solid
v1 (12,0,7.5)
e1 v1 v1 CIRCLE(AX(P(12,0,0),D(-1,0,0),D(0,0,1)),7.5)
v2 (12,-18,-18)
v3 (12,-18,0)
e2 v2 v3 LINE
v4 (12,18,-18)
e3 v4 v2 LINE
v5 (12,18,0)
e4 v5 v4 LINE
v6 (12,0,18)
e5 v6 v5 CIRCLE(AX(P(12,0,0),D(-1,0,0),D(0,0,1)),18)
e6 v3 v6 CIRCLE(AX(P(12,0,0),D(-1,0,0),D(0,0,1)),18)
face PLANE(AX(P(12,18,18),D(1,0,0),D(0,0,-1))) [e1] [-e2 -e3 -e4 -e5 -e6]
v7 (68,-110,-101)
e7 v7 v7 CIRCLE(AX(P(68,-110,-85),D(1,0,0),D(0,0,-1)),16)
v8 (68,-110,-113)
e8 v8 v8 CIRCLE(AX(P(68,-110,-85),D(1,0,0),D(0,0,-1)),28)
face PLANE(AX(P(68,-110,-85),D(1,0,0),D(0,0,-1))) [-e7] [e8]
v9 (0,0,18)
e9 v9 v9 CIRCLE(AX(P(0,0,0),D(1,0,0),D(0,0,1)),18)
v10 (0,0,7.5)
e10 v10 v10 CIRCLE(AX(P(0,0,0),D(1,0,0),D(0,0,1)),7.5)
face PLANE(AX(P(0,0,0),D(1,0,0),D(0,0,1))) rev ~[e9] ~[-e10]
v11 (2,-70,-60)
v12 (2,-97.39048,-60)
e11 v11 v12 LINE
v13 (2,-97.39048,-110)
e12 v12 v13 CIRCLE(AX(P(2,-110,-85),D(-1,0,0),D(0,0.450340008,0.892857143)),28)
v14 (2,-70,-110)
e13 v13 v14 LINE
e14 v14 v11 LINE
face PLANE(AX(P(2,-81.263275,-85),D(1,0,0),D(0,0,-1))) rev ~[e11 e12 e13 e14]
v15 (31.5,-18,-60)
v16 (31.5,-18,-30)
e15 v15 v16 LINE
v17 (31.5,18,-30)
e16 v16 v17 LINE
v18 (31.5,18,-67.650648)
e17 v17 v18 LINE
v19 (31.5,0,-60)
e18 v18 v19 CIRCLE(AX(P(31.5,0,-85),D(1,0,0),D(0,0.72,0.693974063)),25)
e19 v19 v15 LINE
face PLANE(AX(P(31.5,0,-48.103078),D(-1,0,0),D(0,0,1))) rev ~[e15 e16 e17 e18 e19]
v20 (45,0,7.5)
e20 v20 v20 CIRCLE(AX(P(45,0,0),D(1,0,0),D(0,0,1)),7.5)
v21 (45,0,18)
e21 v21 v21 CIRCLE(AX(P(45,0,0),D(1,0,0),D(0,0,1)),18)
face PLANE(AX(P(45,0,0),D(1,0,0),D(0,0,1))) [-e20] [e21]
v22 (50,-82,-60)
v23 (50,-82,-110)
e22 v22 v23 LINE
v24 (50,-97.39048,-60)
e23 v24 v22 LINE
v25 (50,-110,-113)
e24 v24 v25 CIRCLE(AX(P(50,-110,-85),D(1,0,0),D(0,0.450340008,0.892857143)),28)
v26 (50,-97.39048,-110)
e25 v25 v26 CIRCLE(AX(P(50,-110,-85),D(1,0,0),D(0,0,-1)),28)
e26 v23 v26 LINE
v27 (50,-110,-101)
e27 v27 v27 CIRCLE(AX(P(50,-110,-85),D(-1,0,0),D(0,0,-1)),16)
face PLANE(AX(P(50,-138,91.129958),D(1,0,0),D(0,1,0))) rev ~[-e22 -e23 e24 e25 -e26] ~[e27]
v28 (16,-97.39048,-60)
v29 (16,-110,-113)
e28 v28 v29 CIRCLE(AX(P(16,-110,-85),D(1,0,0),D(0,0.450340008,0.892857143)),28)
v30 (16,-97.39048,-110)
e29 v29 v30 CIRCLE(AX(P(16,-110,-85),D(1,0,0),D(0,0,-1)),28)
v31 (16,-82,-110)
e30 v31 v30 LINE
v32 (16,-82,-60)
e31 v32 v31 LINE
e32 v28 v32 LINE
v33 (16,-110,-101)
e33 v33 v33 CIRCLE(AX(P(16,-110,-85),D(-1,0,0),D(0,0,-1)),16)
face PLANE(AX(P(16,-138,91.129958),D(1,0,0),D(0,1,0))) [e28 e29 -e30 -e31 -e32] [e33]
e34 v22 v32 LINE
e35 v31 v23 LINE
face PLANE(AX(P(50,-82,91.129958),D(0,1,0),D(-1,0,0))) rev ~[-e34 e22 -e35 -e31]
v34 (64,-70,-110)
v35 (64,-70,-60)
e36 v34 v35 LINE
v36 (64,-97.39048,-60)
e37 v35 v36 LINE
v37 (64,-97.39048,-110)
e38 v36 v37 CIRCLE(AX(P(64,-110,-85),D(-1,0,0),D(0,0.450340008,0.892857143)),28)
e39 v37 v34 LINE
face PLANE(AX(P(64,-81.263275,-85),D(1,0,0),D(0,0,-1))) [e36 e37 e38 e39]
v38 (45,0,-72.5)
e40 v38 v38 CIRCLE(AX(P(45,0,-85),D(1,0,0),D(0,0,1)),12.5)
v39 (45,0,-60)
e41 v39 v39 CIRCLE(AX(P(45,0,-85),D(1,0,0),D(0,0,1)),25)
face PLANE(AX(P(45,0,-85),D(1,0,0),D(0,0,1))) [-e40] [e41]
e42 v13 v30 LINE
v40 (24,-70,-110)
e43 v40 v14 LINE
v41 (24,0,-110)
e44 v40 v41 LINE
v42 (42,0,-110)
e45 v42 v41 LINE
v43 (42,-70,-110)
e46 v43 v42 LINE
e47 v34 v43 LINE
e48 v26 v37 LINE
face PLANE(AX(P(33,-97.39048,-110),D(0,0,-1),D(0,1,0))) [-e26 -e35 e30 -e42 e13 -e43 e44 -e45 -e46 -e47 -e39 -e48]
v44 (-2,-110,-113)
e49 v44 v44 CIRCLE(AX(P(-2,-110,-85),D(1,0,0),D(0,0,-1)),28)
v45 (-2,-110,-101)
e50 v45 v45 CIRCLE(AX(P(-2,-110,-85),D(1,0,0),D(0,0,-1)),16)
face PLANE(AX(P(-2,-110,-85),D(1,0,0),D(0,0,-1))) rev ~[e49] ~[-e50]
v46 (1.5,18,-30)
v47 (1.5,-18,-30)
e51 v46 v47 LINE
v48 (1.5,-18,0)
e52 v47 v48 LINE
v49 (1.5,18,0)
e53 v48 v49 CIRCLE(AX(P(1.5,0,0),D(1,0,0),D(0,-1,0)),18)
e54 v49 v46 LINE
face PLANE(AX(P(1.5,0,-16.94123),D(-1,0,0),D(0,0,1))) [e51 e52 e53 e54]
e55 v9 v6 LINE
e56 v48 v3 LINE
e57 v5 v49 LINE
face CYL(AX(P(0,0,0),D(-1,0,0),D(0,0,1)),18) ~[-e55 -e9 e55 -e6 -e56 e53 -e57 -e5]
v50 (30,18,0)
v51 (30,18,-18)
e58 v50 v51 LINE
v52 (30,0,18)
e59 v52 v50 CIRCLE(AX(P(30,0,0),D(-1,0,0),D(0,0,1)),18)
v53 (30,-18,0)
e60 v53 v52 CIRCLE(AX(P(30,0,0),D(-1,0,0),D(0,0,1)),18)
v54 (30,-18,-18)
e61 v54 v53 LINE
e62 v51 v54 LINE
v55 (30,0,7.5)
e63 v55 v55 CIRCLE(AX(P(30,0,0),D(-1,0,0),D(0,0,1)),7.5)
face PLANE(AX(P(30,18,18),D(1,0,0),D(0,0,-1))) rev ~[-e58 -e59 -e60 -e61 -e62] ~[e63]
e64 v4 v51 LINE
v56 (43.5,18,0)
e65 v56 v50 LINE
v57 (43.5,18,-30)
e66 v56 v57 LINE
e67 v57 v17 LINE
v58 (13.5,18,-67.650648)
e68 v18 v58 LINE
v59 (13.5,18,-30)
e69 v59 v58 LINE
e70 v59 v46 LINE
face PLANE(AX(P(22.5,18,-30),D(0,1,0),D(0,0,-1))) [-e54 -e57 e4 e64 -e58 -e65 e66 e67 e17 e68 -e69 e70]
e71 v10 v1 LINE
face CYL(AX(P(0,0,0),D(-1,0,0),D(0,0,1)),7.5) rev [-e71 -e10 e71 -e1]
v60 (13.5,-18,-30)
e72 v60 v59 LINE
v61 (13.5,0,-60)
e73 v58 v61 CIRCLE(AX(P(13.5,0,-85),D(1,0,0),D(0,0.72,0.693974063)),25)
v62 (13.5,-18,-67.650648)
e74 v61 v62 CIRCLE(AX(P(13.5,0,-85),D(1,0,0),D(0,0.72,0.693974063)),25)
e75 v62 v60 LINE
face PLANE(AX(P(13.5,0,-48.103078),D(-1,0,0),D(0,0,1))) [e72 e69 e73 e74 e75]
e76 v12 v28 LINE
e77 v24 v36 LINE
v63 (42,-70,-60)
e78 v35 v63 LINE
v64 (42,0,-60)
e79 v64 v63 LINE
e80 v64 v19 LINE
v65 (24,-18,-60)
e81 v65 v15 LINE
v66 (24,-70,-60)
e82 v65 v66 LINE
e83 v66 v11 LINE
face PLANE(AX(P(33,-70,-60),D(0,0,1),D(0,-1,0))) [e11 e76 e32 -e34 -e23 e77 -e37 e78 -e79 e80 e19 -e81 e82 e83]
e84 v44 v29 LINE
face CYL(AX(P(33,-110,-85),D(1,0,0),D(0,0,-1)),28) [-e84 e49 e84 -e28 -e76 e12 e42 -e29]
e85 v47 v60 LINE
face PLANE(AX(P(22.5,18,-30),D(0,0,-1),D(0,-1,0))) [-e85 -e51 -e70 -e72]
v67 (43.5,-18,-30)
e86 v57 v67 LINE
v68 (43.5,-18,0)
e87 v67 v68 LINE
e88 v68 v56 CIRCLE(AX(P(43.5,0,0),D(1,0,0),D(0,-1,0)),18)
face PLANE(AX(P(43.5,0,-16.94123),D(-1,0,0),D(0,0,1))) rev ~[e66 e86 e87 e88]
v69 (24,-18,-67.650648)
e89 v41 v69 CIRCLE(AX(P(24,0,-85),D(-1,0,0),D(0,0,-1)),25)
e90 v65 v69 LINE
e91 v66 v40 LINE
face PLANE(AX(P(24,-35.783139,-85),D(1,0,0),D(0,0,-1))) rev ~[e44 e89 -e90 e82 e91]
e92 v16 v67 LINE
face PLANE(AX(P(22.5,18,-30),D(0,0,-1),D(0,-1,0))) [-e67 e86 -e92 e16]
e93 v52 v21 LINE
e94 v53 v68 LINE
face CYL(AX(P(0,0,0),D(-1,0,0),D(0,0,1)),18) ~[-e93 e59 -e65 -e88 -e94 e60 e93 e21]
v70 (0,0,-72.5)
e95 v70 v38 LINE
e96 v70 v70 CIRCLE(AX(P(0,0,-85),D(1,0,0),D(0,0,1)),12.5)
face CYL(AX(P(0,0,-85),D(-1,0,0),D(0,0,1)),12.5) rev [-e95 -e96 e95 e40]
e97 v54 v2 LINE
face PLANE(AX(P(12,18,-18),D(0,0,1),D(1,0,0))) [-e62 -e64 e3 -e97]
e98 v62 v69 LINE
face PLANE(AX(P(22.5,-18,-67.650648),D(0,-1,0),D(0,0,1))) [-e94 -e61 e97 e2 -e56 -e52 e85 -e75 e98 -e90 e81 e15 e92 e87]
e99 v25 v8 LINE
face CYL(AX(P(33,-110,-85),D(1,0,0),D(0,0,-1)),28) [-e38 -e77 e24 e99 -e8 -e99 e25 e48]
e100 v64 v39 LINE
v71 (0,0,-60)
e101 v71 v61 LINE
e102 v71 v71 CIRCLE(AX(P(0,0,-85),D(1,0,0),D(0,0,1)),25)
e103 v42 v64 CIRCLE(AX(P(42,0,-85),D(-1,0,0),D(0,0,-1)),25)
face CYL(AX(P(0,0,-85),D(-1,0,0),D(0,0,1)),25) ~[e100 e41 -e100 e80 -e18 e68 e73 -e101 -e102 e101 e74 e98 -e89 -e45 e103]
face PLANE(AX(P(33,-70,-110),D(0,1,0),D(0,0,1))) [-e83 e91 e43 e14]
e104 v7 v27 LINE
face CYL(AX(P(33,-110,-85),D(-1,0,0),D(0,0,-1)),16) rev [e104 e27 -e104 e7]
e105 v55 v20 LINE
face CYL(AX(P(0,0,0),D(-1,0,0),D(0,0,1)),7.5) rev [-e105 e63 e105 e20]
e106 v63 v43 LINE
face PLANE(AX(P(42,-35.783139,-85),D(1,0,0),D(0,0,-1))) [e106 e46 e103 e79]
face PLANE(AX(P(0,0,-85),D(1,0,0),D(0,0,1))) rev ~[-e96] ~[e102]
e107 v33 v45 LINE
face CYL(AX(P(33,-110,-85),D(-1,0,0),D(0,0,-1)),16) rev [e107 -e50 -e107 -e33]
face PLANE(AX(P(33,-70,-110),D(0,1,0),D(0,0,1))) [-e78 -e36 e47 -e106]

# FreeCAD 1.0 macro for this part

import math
import FreeCAD as App
import Part
import Sketcher

doc = App.newDocument("Part")
body = doc.addObject("PartDesign::Body", "Body")

# Sketch on YZ plane
sketch1 = body.newObject("Sketcher::SketchObject", "Sketch")
sketch1.AttachmentSupport = (doc.getObject("YZ_Plane"), [""])
sketch1.MapMode = "FlatFace"
sketch1.addGeometry([
    Part.Circle(App.Vector(0, 0, 0), App.Vector(0, 0, 1), 18),
    Part.Circle(App.Vector(0, 0, 0), App.Vector(0, 0, 1), 7.5),
], False)
sketch1.addConstraint([
    Sketcher.Constraint("Coincident", 0, 3, -1, 1),
    Sketcher.Constraint("Coincident", 1, 3, -1, 1),
    Sketcher.Constraint("Diameter", 0, 36.0),
    Sketcher.Constraint("Diameter", 1, 15.0),
])
pad1 = body.newObject("PartDesign::Pad", "Pad")
pad1.Profile = sketch1
pad1.Length = 45

# Sketch on YZ plane
sketch2 = body.newObject("Sketcher::SketchObject", "Sketch001")
sketch2.AttachmentSupport = (doc.getObject("YZ_Plane"), [""])
sketch2.MapMode = "FlatFace"
sketch2.AttachmentOffset = App.Placement(App.Vector(0, 0, 22.5), App.Rotation())
sketch2.addGeometry([
    Part.ArcOfCircle(Part.Circle(App.Vector(0, 0, 0), App.Vector(0, 0, 1), 18), math.radians(180), math.radians(360)),
    Part.LineSegment(App.Vector(18, 0, 0), App.Vector(18, -30, 0)),
    Part.LineSegment(App.Vector(18, -30, 0), App.Vector(-18, -30, 0)),
    Part.LineSegment(App.Vector(-18, -30, 0), App.Vector(-18, 0, 0)),
], False)
sketch2.addConstraint([
    Sketcher.Constraint("Tangent", 0, 2, 1, 1),
    Sketcher.Constraint("Coincident", 1, 2, 2, 1),
    Sketcher.Constraint("Coincident", 2, 2, 3, 1),
    Sketcher.Constraint("Tangent", 3, 2, 0, 1),
    Sketcher.Constraint("Vertical", 1),
    Sketcher.Constraint("Horizontal", 2),
    Sketcher.Constraint("Vertical", 3),
    Sketcher.Constraint("Coincident", 0, 3, -1, 1),
    Sketcher.Constraint("Radius", 0, 18.0),
    Sketcher.Constraint("DistanceY", 1, 2, 1, 1, 30.0),
])
pad2 = body.newObject("PartDesign::Pad", "Pad001")
pad2.Profile = sketch2
pad2.Length = 42
pad2.Midplane = True
body2 = doc.addObject("PartDesign::Body", "Body001")

# Sketch on YZ plane
sketch3 = body2.newObject("Sketcher::SketchObject", "Sketch002")
sketch3.AttachmentSupport = (doc.getObject("YZ_Plane001"), [""])
sketch3.MapMode = "FlatFace"
sketch3.addGeometry([
    Part.Circle(App.Vector(0, -85, 0), App.Vector(0, 0, 1), 25),
    Part.Circle(App.Vector(0, -85, 0), App.Vector(0, 0, 1), 12.5),
], False)
sketch3.addConstraint([
    Sketcher.Constraint("Coincident", 1, 3, 0, 3),
    Sketcher.Constraint("PointOnObject", 0, 3, -2),
    Sketcher.Constraint("Diameter", 0, 50.0),
    Sketcher.Constraint("Diameter", 1, 25.0),
    Sketcher.Constraint("DistanceY", 0, 3, -1, 1, 85.0),
])
pad3 = body2.newObject("PartDesign::Pad", "Pad002")
pad3.Profile = sketch3
pad3.Length = 45

# Sketch on YZ plane
sketch4 = body2.newObject("Sketcher::SketchObject", "Sketch003")
sketch4.AttachmentSupport = (doc.getObject("YZ_Plane001"), [""])
sketch4.MapMode = "FlatFace"
sketch4.AttachmentOffset = App.Placement(App.Vector(0, 0, 42), App.Rotation())
sketch4.addGeometry([
    Part.LineSegment(App.Vector(0, -60, 0), App.Vector(-70, -60, 0)),
    Part.LineSegment(App.Vector(-70, -60, 0), App.Vector(-70, -110, 0)),
    Part.LineSegment(App.Vector(-70, -110, 0), App.Vector(0, -110, 0)),
    Part.ArcOfCircle(Part.Circle(App.Vector(0, -85, 0), App.Vector(0, 0, 1), 25), math.radians(90), math.radians(270)),
], False)
sketch4.addConstraint([
    Sketcher.Constraint("Coincident", 0, 2, 1, 1),
    Sketcher.Constraint("Coincident", 1, 2, 2, 1),
    Sketcher.Constraint("Tangent", 2, 2, 3, 2),
    Sketcher.Constraint("Tangent", 3, 1, 0, 1),
    Sketcher.Constraint("Horizontal", 0),
    Sketcher.Constraint("Vertical", 1),
    Sketcher.Constraint("Horizontal", 2),
    Sketcher.Constraint("PointOnObject", 3, 3, -2),
    Sketcher.Constraint("Radius", 3, 25.0),
    Sketcher.Constraint("DistanceX", 0, 2, 0, 1, 70.0),
    Sketcher.Constraint("DistanceY", 3, 3, -1, 1, 85.0),
])
pad4 = body2.newObject("PartDesign::Pad", "Pad003")
pad4.Profile = sketch4
pad4.Length = 18
pad4.Reversed = True
body3 = doc.addObject("PartDesign::Body", "Body002")

# Sketch on YZ plane
sketch5 = body3.newObject("Sketcher::SketchObject", "Sketch004")
sketch5.AttachmentSupport = (doc.getObject("YZ_Plane002"), [""])
sketch5.MapMode = "FlatFace"
sketch5.AttachmentOffset = App.Placement(App.Vector(0, 0, 33), App.Rotation())
sketch5.addGeometry([
    Part.Circle(App.Vector(-110, -85, 0), App.Vector(0, 0, 1), 28),
    Part.Circle(App.Vector(-110, -85, 0), App.Vector(0, 0, 1), 16),
], False)
sketch5.addConstraint([
    Sketcher.Constraint("Coincident", 1, 3, 0, 3),
    Sketcher.Constraint("Diameter", 0, 56.0),
    Sketcher.Constraint("Diameter", 1, 32.0),
    Sketcher.Constraint("DistanceX", 0, 3, -1, 1, 110.0),
    Sketcher.Constraint("DistanceY", 0, 3, -1, 1, 85.0),
])
pad5 = body3.newObject("PartDesign::Pad", "Pad004")
pad5.Profile = sketch5
pad5.Length = 70
pad5.Midplane = True
body2.AllowCompound = True
doc.recompute()

boolean = body2.newObject("PartDesign::Boolean", "Boolean")
boolean.Type = "Fuse"
boolean.addObjects([body3])

# Sketch on YZ plane
sketch6 = body2.newObject("Sketcher::SketchObject", "Sketch005")
sketch6.AttachmentSupport = (doc.getObject("YZ_Plane001"), [""])
sketch6.MapMode = "FlatFace"
sketch6.AttachmentOffset = App.Placement(App.Vector(0, 0, 33), App.Rotation())
sketch6.addGeometry([
    Part.LineSegment(App.Vector(-70, -60, 0), App.Vector(-97.39048, -60, 0)),
    Part.ArcOfCircle(Part.Circle(App.Vector(-110, -85, 0), App.Vector(0, 0, 1), 28), math.radians(-63.234499), math.radians(63.234499)),
    Part.LineSegment(App.Vector(-97.39048, -110, 0), App.Vector(-70, -110, 0)),
    Part.LineSegment(App.Vector(-70, -110, 0), App.Vector(-70, -60, 0)),
], False)
sketch6.addConstraint([
    Sketcher.Constraint("Coincident", 0, 2, 1, 2),
    Sketcher.Constraint("Coincident", 1, 1, 2, 1),
    Sketcher.Constraint("Coincident", 2, 2, 3, 1),
    Sketcher.Constraint("Coincident", 3, 2, 0, 1),
    Sketcher.Constraint("Horizontal", 0),
    Sketcher.Constraint("Horizontal", 2),
    Sketcher.Constraint("Vertical", 3),
    Sketcher.Constraint("Vertical", 0, 2, 1, 1),
    Sketcher.Constraint("Radius", 1, 28.0),
    Sketcher.Constraint("DistanceY", 3, 1, 3, 2, 50.0),
    Sketcher.Constraint("DistanceX", 1, 3, -1, 1, 110.0),
    Sketcher.Constraint("DistanceY", 1, 3, -1, 1, 85.0),
    Sketcher.Constraint("DistanceX", 2, 2, -1, 1, 70.0),
])
pad6 = body2.newObject("PartDesign::Pad", "Pad005")
pad6.Profile = sketch6
pad6.Length = 62
pad6.Midplane = True

# Sketch on XY plane
sketch7 = body2.newObject("Sketcher::SketchObject", "Sketch006")
sketch7.AttachmentSupport = (doc.getObject("XY_Plane001"), [""])
sketch7.MapMode = "FlatFace"
sketch7.AttachmentOffset = App.Placement(App.Vector(0, 0, -110), App.Rotation())
sketch7.addGeometry([
    Part.LineSegment(App.Vector(50, -82, 0), App.Vector(50, -138, 0)),
    Part.LineSegment(App.Vector(50, -138, 0), App.Vector(16, -138, 0)),
    Part.LineSegment(App.Vector(16, -138, 0), App.Vector(16, -82, 0)),
    Part.LineSegment(App.Vector(16, -82, 0), App.Vector(50, -82, 0)),
], False)
sketch7.addConstraint([
    Sketcher.Constraint("Coincident", 0, 2, 1, 1),
    Sketcher.Constraint("Coincident", 1, 2, 2, 1),
    Sketcher.Constraint("Coincident", 2, 2, 3, 1),
    Sketcher.Constraint("Coincident", 3, 2, 0, 1),
    Sketcher.Constraint("Vertical", 0),
    Sketcher.Constraint("Horizontal", 1),
    Sketcher.Constraint("Vertical", 2),
    Sketcher.Constraint("Horizontal", 3),
    Sketcher.Constraint("DistanceX", 1, 2, 1, 1, 34.0),
    Sketcher.Constraint("DistanceY", 0, 2, 0, 1, 56.0),
    Sketcher.Constraint("DistanceX", -1, 1, 0, 2, 50.0),
    Sketcher.Constraint("DistanceY", 0, 2, -1, 1, 138.0),
])
pocket1 = body2.newObject("PartDesign::Pocket", "Pocket")
pocket1.Profile = sketch7
pocket1.Type = "ThroughAll"
pocket1.Midplane = True
body.AllowCompound = True
doc.recompute()

boolean2 = body.newObject("PartDesign::Boolean", "Boolean001")
boolean2.Type = "Fuse"
boolean2.addObjects([body2])

# Sketch on YZ plane
sketch8 = body.newObject("Sketcher::SketchObject", "Sketch007")
sketch8.AttachmentSupport = (doc.getObject("YZ_Plane"), [""])
sketch8.MapMode = "FlatFace"
sketch8.AttachmentOffset = App.Placement(App.Vector(0, 0, 22.5), App.Rotation())
sketch8.addGeometry([
    Part.LineSegment(App.Vector(-18, -30, 0), App.Vector(18, -30, 0)),
    Part.LineSegment(App.Vector(18, -30, 0), App.Vector(18, -67.650648, 0)),
    Part.ArcOfCircle(Part.Circle(App.Vector(0, -85, 0), App.Vector(0, 0, 1), 25), math.radians(43.94552), math.radians(136.05448)),
    Part.LineSegment(App.Vector(-18, -67.650648, 0), App.Vector(-18, -30, 0)),
], False)
sketch8.addConstraint([
    Sketcher.Constraint("Coincident", 0, 2, 1, 1),
    Sketcher.Constraint("Coincident", 1, 2, 2, 1),
    Sketcher.Constraint("Coincident", 2, 2, 3, 1),
    Sketcher.Constraint("Coincident", 3, 2, 0, 1),
    Sketcher.Constraint("Horizontal", 0),
    Sketcher.Constraint("Vertical", 1),
    Sketcher.Constraint("Vertical", 3),
    Sketcher.Constraint("Symmetric", 1, 2, 2, 2, -2),
    Sketcher.Constraint("Radius", 2, 25.0),
    Sketcher.Constraint("DistanceX", 0, 1, 0, 2, 36.0),
    Sketcher.Constraint("DistanceY", 2, 3, -1, 1, 85.0),
    Sketcher.Constraint("DistanceY", 0, 2, -1, 1, 30.0),
])
pad7 = body.newObject("PartDesign::Pad", "Pad006")
pad7.Profile = sketch8
pad7.Length = 18
pad7.Midplane = True

# Sketch on XZ plane
sketch9 = body.newObject("Sketcher::SketchObject", "Sketch008")
sketch9.AttachmentSupport = (doc.getObject("XZ_Plane"), [""])
sketch9.MapMode = "FlatFace"
sketch9.AttachmentOffset = App.Placement(App.Vector(0, 0, -18), App.Rotation())
sketch9.addGeometry([
    Part.LineSegment(App.Vector(12, -18, 0), App.Vector(12, 18, 0)),
    Part.LineSegment(App.Vector(12, 18, 0), App.Vector(30, 18, 0)),
    Part.LineSegment(App.Vector(30, 18, 0), App.Vector(30, -18, 0)),
    Part.LineSegment(App.Vector(30, -18, 0), App.Vector(12, -18, 0)),
], False)
sketch9.addConstraint([
    Sketcher.Constraint("Coincident", 0, 2, 1, 1),
    Sketcher.Constraint("Coincident", 1, 2, 2, 1),
    Sketcher.Constraint("Coincident", 2, 2, 3, 1),
    Sketcher.Constraint("Coincident", 3, 2, 0, 1),
    Sketcher.Constraint("Vertical", 0),
    Sketcher.Constraint("Horizontal", 1),
    Sketcher.Constraint("Vertical", 2),
    Sketcher.Constraint("Horizontal", 3),
    Sketcher.Constraint("DistanceX", 1, 1, 1, 2, 18.0),
    Sketcher.Constraint("DistanceY", 0, 1, 0, 2, 36.0),
    Sketcher.Constraint("DistanceX", -1, 1, 0, 2, 12.0),
    Sketcher.Constraint("DistanceY", -1, 1, 0, 2, 18.0),
])
pocket2 = body.newObject("PartDesign::Pocket", "Pocket001")
pocket2.Profile = sketch9
pocket2.Type = "ThroughAll"
pocket2.Reversed = True

doc.recompute()
